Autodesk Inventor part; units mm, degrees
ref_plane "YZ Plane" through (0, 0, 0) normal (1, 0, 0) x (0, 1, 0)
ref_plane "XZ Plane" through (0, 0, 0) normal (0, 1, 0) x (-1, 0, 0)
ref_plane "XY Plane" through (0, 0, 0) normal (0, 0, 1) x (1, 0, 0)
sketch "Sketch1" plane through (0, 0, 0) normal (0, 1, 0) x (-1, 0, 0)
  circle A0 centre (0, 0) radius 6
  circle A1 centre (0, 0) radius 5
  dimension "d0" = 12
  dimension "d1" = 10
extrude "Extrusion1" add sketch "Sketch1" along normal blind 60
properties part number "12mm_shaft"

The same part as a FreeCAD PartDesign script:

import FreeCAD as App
import Part
import Sketcher
from FreeCAD import Vector

doc = App.newDocument("Part")
body = doc.addObject("PartDesign::Body", "Body")

sketch1 = doc.addObject("Sketcher::SketchObject", "Sketch")
body.addObject(sketch1)
sketch1.AttachmentSupport = (doc.XZ_Plane, [""])
sketch1.MapMode = "FlatFace"
sketch1.addGeometry(Part.Circle(Vector(0, 0, 0), Vector(0, 0, 1), 6), False)
sketch1.addGeometry(Part.Circle(Vector(0, 0, 0), Vector(0, 0, 1), 5), False)
sketch1.addConstraint(Sketcher.Constraint("Coincident", 0, 3, -1, 1))
sketch1.addConstraint(Sketcher.Constraint("Coincident", 1, 3, -1, 1))
sketch1.addConstraint(Sketcher.Constraint("Diameter", 0, 12.0))
sketch1.addConstraint(Sketcher.Constraint("Diameter", 1, 10.0))
pad1 = doc.addObject("PartDesign::Pad", "Pad")
body.addObject(pad1)
pad1.Profile = sketch1
pad1.Length = 60
pad1.Reversed = True

doc.recompute()
